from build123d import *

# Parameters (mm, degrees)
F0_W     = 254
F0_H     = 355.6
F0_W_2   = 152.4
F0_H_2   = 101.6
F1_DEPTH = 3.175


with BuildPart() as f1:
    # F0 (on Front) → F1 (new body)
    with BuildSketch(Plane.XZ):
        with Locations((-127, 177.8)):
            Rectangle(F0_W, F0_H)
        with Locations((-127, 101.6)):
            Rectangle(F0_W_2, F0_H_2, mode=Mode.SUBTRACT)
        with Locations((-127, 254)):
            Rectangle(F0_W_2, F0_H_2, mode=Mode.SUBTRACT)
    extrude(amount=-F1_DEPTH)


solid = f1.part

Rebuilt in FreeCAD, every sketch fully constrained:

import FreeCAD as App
import Part
import Sketcher
Q = App.Units.Quantity


def add_polygon(sketch, points):
    """Adds a closed chain of lines whose ends are joined by coincident constraints."""
    first, n = sketch.GeometryCount, len(points)
    for a, b in zip(points, points[1:] + points[:1]):
        sketch.addGeometry(Part.LineSegment(App.Vector(*a, 0), App.Vector(*b, 0)), False)
    for i in range(n):
        sketch.addConstraint(Sketcher.Constraint("Coincident", first + i, 2, first + (i + 1) % n, 1))

doc = App.newDocument("Part")
body = doc.addObject("PartDesign::Body", "Body")

sketch1 = body.newObject("Sketcher::SketchObject", "Sketch")
sketch1.AttachmentSupport = (doc.getObject("XZ_Plane"), [""])
sketch1.MapMode = "FlatFace"
add_polygon(sketch1, [(-254, 355.6), (-254, 0), (0, 0), (0, 355.6)])
add_polygon(sketch1, [(-50.8, 50.8), (-203.2, 50.8), (-203.2, 152.4), (-50.8, 152.4)])
add_polygon(sketch1, [(-50.8, 203.2), (-203.2, 203.2), (-203.2, 304.8), (-50.8, 304.8)])
sketch1.addConstraint(Sketcher.Constraint("Vertical", 0))
sketch1.addConstraint(Sketcher.Constraint("Horizontal", 1))
sketch1.addConstraint(Sketcher.Constraint("Vertical", 2))
sketch1.addConstraint(Sketcher.Constraint("Horizontal", 3))
sketch1.addConstraint(Sketcher.Constraint("Horizontal", 4))
sketch1.addConstraint(Sketcher.Constraint("Vertical", 5))
sketch1.addConstraint(Sketcher.Constraint("Horizontal", 6))
sketch1.addConstraint(Sketcher.Constraint("Vertical", 7))
sketch1.addConstraint(Sketcher.Constraint("Horizontal", 8))
sketch1.addConstraint(Sketcher.Constraint("Vertical", 9))
sketch1.addConstraint(Sketcher.Constraint("Horizontal", 10))
sketch1.addConstraint(Sketcher.Constraint("Vertical", 11))
sketch1.addConstraint(Sketcher.Constraint("Coincident", 1, 2, -1, 1))
sketch1.addConstraint(Sketcher.Constraint("Vertical", 5, 2, 8, 2))
sketch1.addConstraint(Sketcher.Constraint("Vertical", 7, 2, 10, 2))
sketch1.addConstraint(Sketcher.Constraint("Equal", 7, 9))
sketch1.addConstraint(Sketcher.Constraint("DistanceX", 1, 1, 1, 2, Q("10 in")))
sketch1.addConstraint(Sketcher.Constraint("DistanceX", 4, 2, 4, 1, Q("6 in")))
sketch1.addConstraint(Sketcher.Constraint("DistanceY", 0, 2, 0, 1, Q("14 in")))
sketch1.addConstraint(Sketcher.Constraint("DistanceY", 5, 1, 5, 2, Q("4 in")))
sketch1.addConstraint(Sketcher.Constraint("DistanceX", 4, 2, -1, 1, Q("8 in")))
sketch1.addConstraint(Sketcher.Constraint("DistanceY", -1, 1, 4, 2, Q("2 in")))
sketch1.addConstraint(Sketcher.Constraint("DistanceY", -1, 1, 8, 2, Q("8 in")))
pad1 = body.newObject("PartDesign::Pad", "Pad")
pad1.Profile = sketch1
pad1.Length = Q("0.125 in")
pad1.Reversed = True

doc.recompute()
